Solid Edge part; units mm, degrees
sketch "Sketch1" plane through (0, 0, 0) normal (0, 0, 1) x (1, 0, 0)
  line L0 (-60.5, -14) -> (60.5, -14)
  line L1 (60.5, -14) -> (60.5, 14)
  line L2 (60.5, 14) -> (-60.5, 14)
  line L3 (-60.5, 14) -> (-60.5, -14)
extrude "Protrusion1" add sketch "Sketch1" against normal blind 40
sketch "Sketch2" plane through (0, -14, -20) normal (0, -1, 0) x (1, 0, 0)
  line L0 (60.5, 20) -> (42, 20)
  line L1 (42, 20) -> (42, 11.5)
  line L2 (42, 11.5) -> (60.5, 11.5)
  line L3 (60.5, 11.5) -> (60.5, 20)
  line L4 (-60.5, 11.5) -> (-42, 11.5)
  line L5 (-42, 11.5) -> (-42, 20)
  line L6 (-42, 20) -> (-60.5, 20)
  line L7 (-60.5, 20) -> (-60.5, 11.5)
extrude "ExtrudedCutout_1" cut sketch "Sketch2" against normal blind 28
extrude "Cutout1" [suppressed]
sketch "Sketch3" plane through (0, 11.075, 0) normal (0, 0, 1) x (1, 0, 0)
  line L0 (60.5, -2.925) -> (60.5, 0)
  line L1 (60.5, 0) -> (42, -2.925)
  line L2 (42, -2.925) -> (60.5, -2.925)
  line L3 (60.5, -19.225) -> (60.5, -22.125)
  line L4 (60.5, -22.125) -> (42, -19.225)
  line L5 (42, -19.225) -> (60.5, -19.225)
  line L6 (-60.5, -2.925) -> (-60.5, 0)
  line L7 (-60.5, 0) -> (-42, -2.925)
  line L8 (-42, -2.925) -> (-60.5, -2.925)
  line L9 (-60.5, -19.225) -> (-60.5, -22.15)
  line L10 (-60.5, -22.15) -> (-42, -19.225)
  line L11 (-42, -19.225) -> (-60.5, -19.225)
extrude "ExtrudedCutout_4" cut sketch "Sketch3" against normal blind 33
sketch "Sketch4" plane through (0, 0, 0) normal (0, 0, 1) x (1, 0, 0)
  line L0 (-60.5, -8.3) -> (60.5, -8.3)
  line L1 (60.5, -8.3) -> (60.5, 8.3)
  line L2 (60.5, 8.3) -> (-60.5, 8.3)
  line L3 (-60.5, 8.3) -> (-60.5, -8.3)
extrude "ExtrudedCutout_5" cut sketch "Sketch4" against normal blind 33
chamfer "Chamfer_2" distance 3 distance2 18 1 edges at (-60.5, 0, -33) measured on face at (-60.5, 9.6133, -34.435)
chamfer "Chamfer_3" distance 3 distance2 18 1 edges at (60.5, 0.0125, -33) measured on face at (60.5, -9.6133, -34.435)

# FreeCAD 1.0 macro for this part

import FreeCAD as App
import Part
import Sketcher
from FreeCAD import Vector


def edges_at(feature, points):
    """Names of the edges that pass closest to the given points."""
    edges = feature.Shape.Edges
    near = lambda p: min(range(len(edges)), key=lambda i: edges[i].distToShape(Part.Vertex(*p))[0])
    return sorted({f"Edge{near(p) + 1}" for p in points})

doc = App.newDocument("Part")
body = doc.addObject("PartDesign::Body", "Body")

# Sketch on XY plane
sketch1 = body.newObject("Sketcher::SketchObject", "Sketch")
sketch1.AttachmentSupport = (doc.getObject("XY_Plane"), [""])
sketch1.MapMode = "FlatFace"
sketch1.addGeometry([
    Part.LineSegment(Vector(-60, 14, 0), Vector(-60, -14, 0)),
    Part.LineSegment(Vector(-60, -14, 0), Vector(60, -14, 0)),
    Part.LineSegment(Vector(60, -14, 0), Vector(60, 14, 0)),
    Part.LineSegment(Vector(60, 14, 0), Vector(-60, 14, 0)),
], False)
sketch1.addConstraint([
    Sketcher.Constraint("Coincident", 0, 2, 1, 1),
    Sketcher.Constraint("Coincident", 1, 2, 2, 1),
    Sketcher.Constraint("Coincident", 2, 2, 3, 1),
    Sketcher.Constraint("Coincident", 3, 2, 0, 1),
    Sketcher.Constraint("Vertical", 0),
    Sketcher.Constraint("Horizontal", 1),
    Sketcher.Constraint("Vertical", 2),
    Sketcher.Constraint("Horizontal", 3),
    Sketcher.Constraint("Symmetric", 0, 2, 2, 2, -1, 1),
    Sketcher.Constraint("DistanceX", 1, 1, 1, 2, 121.0),
    Sketcher.Constraint("DistanceY", 0, 2, 0, 1, 28.0),
])
pad1 = body.newObject("PartDesign::Pad", "Pad")
pad1.Profile = sketch1
pad1.Length = 40
pad1.Reversed = True

# Sketch on XZ plane
sketch2 = body.newObject("Sketcher::SketchObject", "Sketch001")
sketch2.AttachmentSupport = (doc.getObject("XZ_Plane"), [""])
sketch2.MapMode = "FlatFace"
sketch2.AttachmentOffset = App.Placement(Vector(0, 0, 14), App.Rotation())
sketch2.addGeometry([
    Part.LineSegment(Vector(60, -8, 0), Vector(60, 0, 0)),  # 0
    Part.LineSegment(Vector(60, 0, 0), Vector(42, 0, 0)),  # 1
    Part.LineSegment(Vector(42, 0, 0), Vector(42, -8, 0)),  # 2
    Part.LineSegment(Vector(42, -8, 0), Vector(60, -8, 0)),  # 3
    Part.LineSegment(Vector(-60, 0, 0), Vector(-60, -8, 0)),  # 4
    Part.LineSegment(Vector(-60, -8, 0), Vector(-42, -8, 0)),  # 5
    Part.LineSegment(Vector(-42, -8, 0), Vector(-42, 0, 0)),  # 6
    Part.LineSegment(Vector(-42, 0, 0), Vector(-60, 0, 0)),  # 7
], False)
sketch2.addConstraint([
    Sketcher.Constraint("Coincident", 0, 2, 1, 1),
    Sketcher.Constraint("Coincident", 1, 2, 2, 1),
    Sketcher.Constraint("Coincident", 2, 2, 3, 1),
    Sketcher.Constraint("Coincident", 3, 2, 0, 1),
    Sketcher.Constraint("Coincident", 4, 2, 5, 1),
    Sketcher.Constraint("Coincident", 5, 2, 6, 1),
    Sketcher.Constraint("Coincident", 6, 2, 7, 1),
    Sketcher.Constraint("Coincident", 7, 2, 4, 1),
    Sketcher.Constraint("Vertical", 0),
    Sketcher.Constraint("Horizontal", 1),
    Sketcher.Constraint("Vertical", 2),
    Sketcher.Constraint("Horizontal", 3),
    Sketcher.Constraint("Vertical", 4),
    Sketcher.Constraint("Horizontal", 5),
    Sketcher.Constraint("Vertical", 6),
    Sketcher.Constraint("Horizontal", 7),
    Sketcher.Constraint("Symmetric", 1, 2, 6, 2, -1, 1),
    Sketcher.Constraint("Symmetric", 3, 2, 4, 2, -2),
    Sketcher.Constraint("PointOnObject", 0, 2, -1),
    Sketcher.Constraint("DistanceX", 1, 2, 1, 1, 18.5),
    Sketcher.Constraint("DistanceY", 0, 1, 0, 2, 8.5),
    Sketcher.Constraint("DistanceX", -1, 1, 1, 2, 42.0),
])
pocket1 = body.newObject("PartDesign::Pocket", "Pocket")
pocket1.Profile = sketch2
pocket1.Length = 28

# Sketch on XY plane
sketch3 = body.newObject("Sketcher::SketchObject", "Sketch002")
sketch3.AttachmentSupport = (doc.getObject("XY_Plane"), [""])
sketch3.MapMode = "FlatFace"
sketch3.addGeometry([
    Part.LineSegment(Vector(42, 8.2, 0), Vector(60.5, 8.2, 0)),  # 0
    Part.LineSegment(Vector(60.5, 8.2, 0), Vector(60.5, 11.1, 0)),  # 1
    Part.LineSegment(Vector(60.5, 11.1, 0), Vector(42, 8.2, 0)),  # 2
    Part.LineSegment(Vector(60.5, -11.1, 0), Vector(60.5, -8.2, 0)),  # 3
    Part.LineSegment(Vector(60.5, -8.2, 0), Vector(42, -8.2, 0)),  # 4
    Part.LineSegment(Vector(42, -8.2, 0), Vector(60.5, -11.1, 0)),  # 5
    Part.LineSegment(Vector(-60.5, 11.1, 0), Vector(-60.5, 8.2, 0)),  # 6
    Part.LineSegment(Vector(-60.5, 8.2, 0), Vector(-42, 8.2, 0)),  # 7
    Part.LineSegment(Vector(-42, 8.2, 0), Vector(-60.5, 11.1, 0)),  # 8
    Part.LineSegment(Vector(-42, -8.2, 0), Vector(-60.5, -8.2, 0)),  # 9
    Part.LineSegment(Vector(-60.5, -8.2, 0), Vector(-60.5, -11.1, 0)),  # 10
    Part.LineSegment(Vector(-60.5, -11.1, 0), Vector(-42, -8.2, 0)),  # 11
], False)
sketch3.addConstraint([
    Sketcher.Constraint("Coincident", 0, 2, 1, 1),
    Sketcher.Constraint("Coincident", 1, 2, 2, 1),
    Sketcher.Constraint("Coincident", 2, 2, 0, 1),
    Sketcher.Constraint("Coincident", 3, 2, 4, 1),
    Sketcher.Constraint("Coincident", 4, 2, 5, 1),
    Sketcher.Constraint("Coincident", 5, 2, 3, 1),
    Sketcher.Constraint("Coincident", 6, 2, 7, 1),
    Sketcher.Constraint("Coincident", 7, 2, 8, 1),
    Sketcher.Constraint("Coincident", 8, 2, 6, 1),
    Sketcher.Constraint("Coincident", 9, 2, 10, 1),
    Sketcher.Constraint("Coincident", 10, 2, 11, 1),
    Sketcher.Constraint("Coincident", 11, 2, 9, 1),
    Sketcher.Constraint("Horizontal", 0),
    Sketcher.Constraint("Vertical", 1),
    Sketcher.Constraint("Vertical", 3),
    Sketcher.Constraint("Horizontal", 4),
    Sketcher.Constraint("Vertical", 6),
    Sketcher.Constraint("Horizontal", 7),
    Sketcher.Constraint("Horizontal", 9),
    Sketcher.Constraint("Vertical", 10),
    Sketcher.Constraint("Symmetric", 3, 2, 6, 2, -1, 1),
    Sketcher.Constraint("Symmetric", 0, 2, 9, 2, -1, 1),
    Sketcher.Constraint("Symmetric", 0, 2, 6, 2, -2),
    Sketcher.Constraint("Parallel", 2, 11),
    Sketcher.Constraint("Horizontal", 1, 2, 8, 2),
    Sketcher.Constraint("Vertical", 2, 2, 4, 2),
    Sketcher.Constraint("Vertical", 7, 2, 11, 2),
    Sketcher.Constraint("Equal", 4, 7),
    Sketcher.Constraint("DistanceX", 0, 1, 0, 2, 18.5),
    Sketcher.Constraint("DistanceY", 3, 1, 3, 2, 2.9),
    Sketcher.Constraint("DistanceX", -1, 1, 2, 2, 42.0),
    Sketcher.Constraint("DistanceY", 3, 2, 0, 2, 16.3),
    Sketcher.Constraint("DistanceY", 1, 1, 1, 2, 2.925),
])
pocket2 = body.newObject("PartDesign::Pocket", "Pocket001")
pocket2.Profile = sketch3
pocket2.Length = 33

# Sketch on XY plane
sketch4 = body.newObject("Sketcher::SketchObject", "Sketch003")
sketch4.AttachmentSupport = (doc.getObject("XY_Plane"), [""])
sketch4.MapMode = "FlatFace"
sketch4.addGeometry([
    Part.LineSegment(Vector(-60, 8, 0), Vector(-60, -8, 0)),
    Part.LineSegment(Vector(-60, -8, 0), Vector(60, -8, 0)),
    Part.LineSegment(Vector(60, -8, 0), Vector(60, 8, 0)),
    Part.LineSegment(Vector(60, 8, 0), Vector(-60, 8, 0)),
], False)
sketch4.addConstraint([
    Sketcher.Constraint("Coincident", 0, 2, 1, 1),
    Sketcher.Constraint("Coincident", 1, 2, 2, 1),
    Sketcher.Constraint("Coincident", 2, 2, 3, 1),
    Sketcher.Constraint("Coincident", 3, 2, 0, 1),
    Sketcher.Constraint("Vertical", 0),
    Sketcher.Constraint("Horizontal", 1),
    Sketcher.Constraint("Vertical", 2),
    Sketcher.Constraint("Horizontal", 3),
    Sketcher.Constraint("Symmetric", 0, 2, 2, 2, -1, 1),
    Sketcher.Constraint("DistanceX", 1, 1, 1, 2, 121.0),
    Sketcher.Constraint("DistanceY", 0, 2, 0, 1, 16.6),
])
pocket3 = body.newObject("PartDesign::Pocket", "Pocket002")
pocket3.Profile = sketch4
pocket3.Length = 33
doc.recompute()

chamfer = body.newObject("PartDesign::Chamfer", "Chamfer")
chamfer.Base = (pocket3, edges_at(pocket3, [(-60.5, 0, -33)]))
chamfer.ChamferType = "Two distances"
chamfer.Size = 3
chamfer.Size2 = 18
doc.recompute()

chamfer2 = body.newObject("PartDesign::Chamfer", "Chamfer001")
chamfer2.Base = (chamfer, edges_at(chamfer, [(60.5, 0.013, -33)]))
chamfer2.ChamferType = "Two distances"
chamfer2.Size = 3
chamfer2.Size2 = 18
chamfer2.FlipDirection = True

doc.recompute()
